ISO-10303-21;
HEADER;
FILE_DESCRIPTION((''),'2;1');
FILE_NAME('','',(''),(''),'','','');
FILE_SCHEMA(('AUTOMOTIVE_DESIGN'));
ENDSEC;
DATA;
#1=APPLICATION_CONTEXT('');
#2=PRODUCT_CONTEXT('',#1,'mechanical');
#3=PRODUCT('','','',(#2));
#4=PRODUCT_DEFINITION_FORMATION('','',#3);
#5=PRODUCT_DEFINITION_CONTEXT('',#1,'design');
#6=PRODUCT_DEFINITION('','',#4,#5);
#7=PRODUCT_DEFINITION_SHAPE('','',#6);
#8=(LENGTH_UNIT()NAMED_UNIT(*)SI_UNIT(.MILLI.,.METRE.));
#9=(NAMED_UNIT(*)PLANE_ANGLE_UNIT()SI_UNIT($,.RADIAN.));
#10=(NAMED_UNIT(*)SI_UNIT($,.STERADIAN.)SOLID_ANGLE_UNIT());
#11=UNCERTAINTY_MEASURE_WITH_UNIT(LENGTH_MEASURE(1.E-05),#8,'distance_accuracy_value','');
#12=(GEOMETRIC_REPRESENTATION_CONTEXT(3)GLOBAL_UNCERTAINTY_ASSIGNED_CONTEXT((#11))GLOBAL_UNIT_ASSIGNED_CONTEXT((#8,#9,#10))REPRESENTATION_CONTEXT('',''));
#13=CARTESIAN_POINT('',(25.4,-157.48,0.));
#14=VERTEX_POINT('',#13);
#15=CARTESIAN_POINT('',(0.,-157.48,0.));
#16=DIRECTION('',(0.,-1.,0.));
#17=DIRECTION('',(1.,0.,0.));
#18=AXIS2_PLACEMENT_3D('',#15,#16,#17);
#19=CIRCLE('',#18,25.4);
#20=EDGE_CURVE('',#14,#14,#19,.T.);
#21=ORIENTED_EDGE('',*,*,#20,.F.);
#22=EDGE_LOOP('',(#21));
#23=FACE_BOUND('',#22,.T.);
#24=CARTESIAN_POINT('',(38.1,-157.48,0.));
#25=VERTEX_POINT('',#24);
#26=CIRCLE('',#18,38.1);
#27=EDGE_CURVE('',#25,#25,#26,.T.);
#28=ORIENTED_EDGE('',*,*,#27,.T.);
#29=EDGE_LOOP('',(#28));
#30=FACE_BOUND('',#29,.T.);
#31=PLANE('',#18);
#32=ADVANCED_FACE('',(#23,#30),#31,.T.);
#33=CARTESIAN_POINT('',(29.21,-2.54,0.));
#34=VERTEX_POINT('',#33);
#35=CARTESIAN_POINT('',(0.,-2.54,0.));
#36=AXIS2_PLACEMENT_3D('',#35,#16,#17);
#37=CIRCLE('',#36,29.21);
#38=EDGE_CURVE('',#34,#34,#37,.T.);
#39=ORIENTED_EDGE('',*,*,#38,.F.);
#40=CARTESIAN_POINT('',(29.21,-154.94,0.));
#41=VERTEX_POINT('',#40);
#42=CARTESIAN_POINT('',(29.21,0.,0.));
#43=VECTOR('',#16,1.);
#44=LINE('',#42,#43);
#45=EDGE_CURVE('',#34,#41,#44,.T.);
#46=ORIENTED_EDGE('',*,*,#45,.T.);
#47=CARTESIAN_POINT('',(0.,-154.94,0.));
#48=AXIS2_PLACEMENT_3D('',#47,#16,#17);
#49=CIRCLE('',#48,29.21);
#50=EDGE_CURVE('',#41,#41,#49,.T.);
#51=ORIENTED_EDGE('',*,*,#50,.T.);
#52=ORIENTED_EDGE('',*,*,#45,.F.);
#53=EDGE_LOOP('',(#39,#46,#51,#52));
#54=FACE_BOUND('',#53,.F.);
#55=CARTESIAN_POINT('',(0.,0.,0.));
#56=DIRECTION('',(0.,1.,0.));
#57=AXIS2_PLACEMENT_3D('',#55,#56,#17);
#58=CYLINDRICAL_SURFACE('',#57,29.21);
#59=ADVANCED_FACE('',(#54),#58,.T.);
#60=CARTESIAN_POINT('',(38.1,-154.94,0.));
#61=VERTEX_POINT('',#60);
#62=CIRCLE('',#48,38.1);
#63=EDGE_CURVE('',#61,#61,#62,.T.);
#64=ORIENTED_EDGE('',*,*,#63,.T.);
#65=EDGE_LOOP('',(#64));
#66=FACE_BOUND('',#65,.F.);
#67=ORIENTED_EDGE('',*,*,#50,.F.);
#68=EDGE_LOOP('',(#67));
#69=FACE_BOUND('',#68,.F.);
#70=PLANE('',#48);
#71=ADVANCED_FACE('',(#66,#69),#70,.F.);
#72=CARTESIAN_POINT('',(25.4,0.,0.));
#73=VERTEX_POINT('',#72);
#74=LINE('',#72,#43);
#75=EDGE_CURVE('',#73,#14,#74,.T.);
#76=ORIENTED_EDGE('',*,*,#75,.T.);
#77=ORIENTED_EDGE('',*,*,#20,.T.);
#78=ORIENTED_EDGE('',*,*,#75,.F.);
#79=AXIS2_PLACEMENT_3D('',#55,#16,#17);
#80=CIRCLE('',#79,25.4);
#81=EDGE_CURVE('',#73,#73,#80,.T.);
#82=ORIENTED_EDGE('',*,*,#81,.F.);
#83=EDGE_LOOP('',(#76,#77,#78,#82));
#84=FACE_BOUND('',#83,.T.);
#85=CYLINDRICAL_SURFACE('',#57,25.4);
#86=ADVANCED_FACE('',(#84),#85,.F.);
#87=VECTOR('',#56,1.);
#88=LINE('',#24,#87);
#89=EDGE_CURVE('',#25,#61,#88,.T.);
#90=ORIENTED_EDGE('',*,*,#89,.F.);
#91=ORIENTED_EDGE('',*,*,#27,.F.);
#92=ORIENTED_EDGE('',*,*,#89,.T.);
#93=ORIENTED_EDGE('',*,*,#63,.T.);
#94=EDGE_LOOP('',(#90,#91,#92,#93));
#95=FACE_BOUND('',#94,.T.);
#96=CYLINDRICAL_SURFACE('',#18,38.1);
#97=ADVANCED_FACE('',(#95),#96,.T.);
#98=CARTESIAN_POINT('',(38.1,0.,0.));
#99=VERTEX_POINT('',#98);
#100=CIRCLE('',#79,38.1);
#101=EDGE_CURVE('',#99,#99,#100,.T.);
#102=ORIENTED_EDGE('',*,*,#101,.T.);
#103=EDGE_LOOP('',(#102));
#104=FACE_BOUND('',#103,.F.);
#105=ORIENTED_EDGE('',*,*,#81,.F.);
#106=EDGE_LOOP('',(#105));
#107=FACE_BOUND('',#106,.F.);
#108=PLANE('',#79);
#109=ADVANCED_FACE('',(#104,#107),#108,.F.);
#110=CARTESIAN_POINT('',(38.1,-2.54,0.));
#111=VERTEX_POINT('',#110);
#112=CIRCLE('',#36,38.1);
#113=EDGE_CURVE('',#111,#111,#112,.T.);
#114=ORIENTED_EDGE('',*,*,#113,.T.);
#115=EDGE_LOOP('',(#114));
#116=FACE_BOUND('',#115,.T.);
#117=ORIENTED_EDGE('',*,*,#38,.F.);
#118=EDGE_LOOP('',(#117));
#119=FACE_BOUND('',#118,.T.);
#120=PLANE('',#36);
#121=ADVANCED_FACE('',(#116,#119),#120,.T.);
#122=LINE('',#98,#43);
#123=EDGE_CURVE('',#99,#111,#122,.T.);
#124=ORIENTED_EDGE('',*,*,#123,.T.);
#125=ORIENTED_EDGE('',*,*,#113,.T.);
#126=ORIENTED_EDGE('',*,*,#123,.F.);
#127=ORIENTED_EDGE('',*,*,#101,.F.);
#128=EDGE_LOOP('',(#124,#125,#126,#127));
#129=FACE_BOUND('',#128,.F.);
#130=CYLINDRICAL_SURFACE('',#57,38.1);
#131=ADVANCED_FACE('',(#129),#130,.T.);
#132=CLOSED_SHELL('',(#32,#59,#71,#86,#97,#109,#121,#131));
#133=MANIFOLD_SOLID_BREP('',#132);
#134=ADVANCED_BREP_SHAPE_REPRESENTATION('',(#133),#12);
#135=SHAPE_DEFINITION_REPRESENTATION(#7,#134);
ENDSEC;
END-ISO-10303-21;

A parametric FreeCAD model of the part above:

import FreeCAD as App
import Part
import Sketcher
from FreeCAD import Vector
Q = App.Units.Quantity

doc = App.newDocument("Part")
params = doc.addObject("Spreadsheet::Sheet", "Params")
for row, (alias, value) in enumerate([
    ("sketch1_diameter", "3 in"),
    ("sketch1_diameter2", "2.3 in"),
    ("pad1_length", "0.1 in"),
    ("sketch2_diameter", "2 in"),
    ("sketch2_diameter2", "2.3 in"),
    ("pad2_length", "6.2 in"),
    ("sketch3_diameter", "3 in"),
    ("sketch3_diameter2", "2.3 in"),
    ("pad3_length", "0.1 in"),
], start=1):
    params.set(f"A{row}", alias)
    params.set(f"B{row}", "=" + value)
    params.setAlias(f"B{row}", alias)

body = doc.addObject("PartDesign::Body", "Body")

# Sketch on XZ plane
sketch1 = body.newObject("Sketcher::SketchObject", "Sketch")
sketch1.AttachmentSupport = (doc.getObject("XZ_Plane"), [""])
sketch1.MapMode = "FlatFace"
sketch1.addGeometry([
    Part.Circle(Vector(0, 0, 0), Vector(0, 0, 1), 38),
    Part.Circle(Vector(0, 0, 0), Vector(0, 0, 1), 29),
], False)
sketch1.addConstraint([
    Sketcher.Constraint("Coincident", 0, 3, -1, 1),
    Sketcher.Constraint("Coincident", 1, 3, -1, 1),
    Sketcher.Constraint("Diameter", 0, Q("3 in")),
    Sketcher.Constraint("Diameter", 1, Q("2.3 in")),
])
sketch1.setExpression("Constraints[2]", "Params.sketch1_diameter")
sketch1.setExpression("Constraints[3]", "Params.sketch1_diameter2")
pad1 = body.newObject("PartDesign::Pad", "Pad")
pad1.Profile = sketch1
pad1.setExpression("Length", "Params.pad1_length")

# Sketch on XZ plane
sketch2 = body.newObject("Sketcher::SketchObject", "Sketch001")
sketch2.AttachmentSupport = (doc.getObject("XZ_Plane"), [""])
sketch2.MapMode = "FlatFace"
sketch2.addGeometry([
    Part.Circle(Vector(0, 0, 0), Vector(0, 0, 1), 29),
    Part.Circle(Vector(0, 0, 0), Vector(0, 0, 1), 25),
], False)
sketch2.addConstraint([
    Sketcher.Constraint("Coincident", 0, 3, -1, 1),
    Sketcher.Constraint("Coincident", 1, 3, -1, 1),
    Sketcher.Constraint("Diameter", 1, Q("2 in")),
    Sketcher.Constraint("Diameter", 0, Q("2.3 in")),
])
sketch2.setExpression("Constraints[2]", "Params.sketch2_diameter")
sketch2.setExpression("Constraints[3]", "Params.sketch2_diameter2")
pad2 = body.newObject("PartDesign::Pad", "Pad001")
pad2.Profile = sketch2
pad2.setExpression("Length", "Params.pad2_length")

# Sketch on XZ plane
sketch3 = body.newObject("Sketcher::SketchObject", "Sketch002")
sketch3.AttachmentSupport = (doc.getObject("XZ_Plane"), [""])
sketch3.MapMode = "FlatFace"
sketch3.AttachmentOffset = App.Placement(Vector(0, 0, 6.2 * 25.4), App.Rotation())
sketch3.addGeometry([
    Part.Circle(Vector(0, 0, 0), Vector(0, 0, 1), 38),
    Part.Circle(Vector(0, 0, 0), Vector(0, 0, 1), 29),
], False)
sketch3.addConstraint([
    Sketcher.Constraint("Coincident", 0, 3, -1, 1),
    Sketcher.Constraint("Coincident", 1, 3, -1, 1),
    Sketcher.Constraint("Diameter", 0, Q("3 in")),
    Sketcher.Constraint("Diameter", 1, Q("2.3 in")),
])
sketch3.setExpression("Constraints[2]", "Params.sketch3_diameter")
sketch3.setExpression("Constraints[3]", "Params.sketch3_diameter2")
pad3 = body.newObject("PartDesign::Pad", "Pad002")
pad3.Profile = sketch3
pad3.setExpression("Length", "Params.pad3_length")
pad3.Reversed = True

doc.recompute()
